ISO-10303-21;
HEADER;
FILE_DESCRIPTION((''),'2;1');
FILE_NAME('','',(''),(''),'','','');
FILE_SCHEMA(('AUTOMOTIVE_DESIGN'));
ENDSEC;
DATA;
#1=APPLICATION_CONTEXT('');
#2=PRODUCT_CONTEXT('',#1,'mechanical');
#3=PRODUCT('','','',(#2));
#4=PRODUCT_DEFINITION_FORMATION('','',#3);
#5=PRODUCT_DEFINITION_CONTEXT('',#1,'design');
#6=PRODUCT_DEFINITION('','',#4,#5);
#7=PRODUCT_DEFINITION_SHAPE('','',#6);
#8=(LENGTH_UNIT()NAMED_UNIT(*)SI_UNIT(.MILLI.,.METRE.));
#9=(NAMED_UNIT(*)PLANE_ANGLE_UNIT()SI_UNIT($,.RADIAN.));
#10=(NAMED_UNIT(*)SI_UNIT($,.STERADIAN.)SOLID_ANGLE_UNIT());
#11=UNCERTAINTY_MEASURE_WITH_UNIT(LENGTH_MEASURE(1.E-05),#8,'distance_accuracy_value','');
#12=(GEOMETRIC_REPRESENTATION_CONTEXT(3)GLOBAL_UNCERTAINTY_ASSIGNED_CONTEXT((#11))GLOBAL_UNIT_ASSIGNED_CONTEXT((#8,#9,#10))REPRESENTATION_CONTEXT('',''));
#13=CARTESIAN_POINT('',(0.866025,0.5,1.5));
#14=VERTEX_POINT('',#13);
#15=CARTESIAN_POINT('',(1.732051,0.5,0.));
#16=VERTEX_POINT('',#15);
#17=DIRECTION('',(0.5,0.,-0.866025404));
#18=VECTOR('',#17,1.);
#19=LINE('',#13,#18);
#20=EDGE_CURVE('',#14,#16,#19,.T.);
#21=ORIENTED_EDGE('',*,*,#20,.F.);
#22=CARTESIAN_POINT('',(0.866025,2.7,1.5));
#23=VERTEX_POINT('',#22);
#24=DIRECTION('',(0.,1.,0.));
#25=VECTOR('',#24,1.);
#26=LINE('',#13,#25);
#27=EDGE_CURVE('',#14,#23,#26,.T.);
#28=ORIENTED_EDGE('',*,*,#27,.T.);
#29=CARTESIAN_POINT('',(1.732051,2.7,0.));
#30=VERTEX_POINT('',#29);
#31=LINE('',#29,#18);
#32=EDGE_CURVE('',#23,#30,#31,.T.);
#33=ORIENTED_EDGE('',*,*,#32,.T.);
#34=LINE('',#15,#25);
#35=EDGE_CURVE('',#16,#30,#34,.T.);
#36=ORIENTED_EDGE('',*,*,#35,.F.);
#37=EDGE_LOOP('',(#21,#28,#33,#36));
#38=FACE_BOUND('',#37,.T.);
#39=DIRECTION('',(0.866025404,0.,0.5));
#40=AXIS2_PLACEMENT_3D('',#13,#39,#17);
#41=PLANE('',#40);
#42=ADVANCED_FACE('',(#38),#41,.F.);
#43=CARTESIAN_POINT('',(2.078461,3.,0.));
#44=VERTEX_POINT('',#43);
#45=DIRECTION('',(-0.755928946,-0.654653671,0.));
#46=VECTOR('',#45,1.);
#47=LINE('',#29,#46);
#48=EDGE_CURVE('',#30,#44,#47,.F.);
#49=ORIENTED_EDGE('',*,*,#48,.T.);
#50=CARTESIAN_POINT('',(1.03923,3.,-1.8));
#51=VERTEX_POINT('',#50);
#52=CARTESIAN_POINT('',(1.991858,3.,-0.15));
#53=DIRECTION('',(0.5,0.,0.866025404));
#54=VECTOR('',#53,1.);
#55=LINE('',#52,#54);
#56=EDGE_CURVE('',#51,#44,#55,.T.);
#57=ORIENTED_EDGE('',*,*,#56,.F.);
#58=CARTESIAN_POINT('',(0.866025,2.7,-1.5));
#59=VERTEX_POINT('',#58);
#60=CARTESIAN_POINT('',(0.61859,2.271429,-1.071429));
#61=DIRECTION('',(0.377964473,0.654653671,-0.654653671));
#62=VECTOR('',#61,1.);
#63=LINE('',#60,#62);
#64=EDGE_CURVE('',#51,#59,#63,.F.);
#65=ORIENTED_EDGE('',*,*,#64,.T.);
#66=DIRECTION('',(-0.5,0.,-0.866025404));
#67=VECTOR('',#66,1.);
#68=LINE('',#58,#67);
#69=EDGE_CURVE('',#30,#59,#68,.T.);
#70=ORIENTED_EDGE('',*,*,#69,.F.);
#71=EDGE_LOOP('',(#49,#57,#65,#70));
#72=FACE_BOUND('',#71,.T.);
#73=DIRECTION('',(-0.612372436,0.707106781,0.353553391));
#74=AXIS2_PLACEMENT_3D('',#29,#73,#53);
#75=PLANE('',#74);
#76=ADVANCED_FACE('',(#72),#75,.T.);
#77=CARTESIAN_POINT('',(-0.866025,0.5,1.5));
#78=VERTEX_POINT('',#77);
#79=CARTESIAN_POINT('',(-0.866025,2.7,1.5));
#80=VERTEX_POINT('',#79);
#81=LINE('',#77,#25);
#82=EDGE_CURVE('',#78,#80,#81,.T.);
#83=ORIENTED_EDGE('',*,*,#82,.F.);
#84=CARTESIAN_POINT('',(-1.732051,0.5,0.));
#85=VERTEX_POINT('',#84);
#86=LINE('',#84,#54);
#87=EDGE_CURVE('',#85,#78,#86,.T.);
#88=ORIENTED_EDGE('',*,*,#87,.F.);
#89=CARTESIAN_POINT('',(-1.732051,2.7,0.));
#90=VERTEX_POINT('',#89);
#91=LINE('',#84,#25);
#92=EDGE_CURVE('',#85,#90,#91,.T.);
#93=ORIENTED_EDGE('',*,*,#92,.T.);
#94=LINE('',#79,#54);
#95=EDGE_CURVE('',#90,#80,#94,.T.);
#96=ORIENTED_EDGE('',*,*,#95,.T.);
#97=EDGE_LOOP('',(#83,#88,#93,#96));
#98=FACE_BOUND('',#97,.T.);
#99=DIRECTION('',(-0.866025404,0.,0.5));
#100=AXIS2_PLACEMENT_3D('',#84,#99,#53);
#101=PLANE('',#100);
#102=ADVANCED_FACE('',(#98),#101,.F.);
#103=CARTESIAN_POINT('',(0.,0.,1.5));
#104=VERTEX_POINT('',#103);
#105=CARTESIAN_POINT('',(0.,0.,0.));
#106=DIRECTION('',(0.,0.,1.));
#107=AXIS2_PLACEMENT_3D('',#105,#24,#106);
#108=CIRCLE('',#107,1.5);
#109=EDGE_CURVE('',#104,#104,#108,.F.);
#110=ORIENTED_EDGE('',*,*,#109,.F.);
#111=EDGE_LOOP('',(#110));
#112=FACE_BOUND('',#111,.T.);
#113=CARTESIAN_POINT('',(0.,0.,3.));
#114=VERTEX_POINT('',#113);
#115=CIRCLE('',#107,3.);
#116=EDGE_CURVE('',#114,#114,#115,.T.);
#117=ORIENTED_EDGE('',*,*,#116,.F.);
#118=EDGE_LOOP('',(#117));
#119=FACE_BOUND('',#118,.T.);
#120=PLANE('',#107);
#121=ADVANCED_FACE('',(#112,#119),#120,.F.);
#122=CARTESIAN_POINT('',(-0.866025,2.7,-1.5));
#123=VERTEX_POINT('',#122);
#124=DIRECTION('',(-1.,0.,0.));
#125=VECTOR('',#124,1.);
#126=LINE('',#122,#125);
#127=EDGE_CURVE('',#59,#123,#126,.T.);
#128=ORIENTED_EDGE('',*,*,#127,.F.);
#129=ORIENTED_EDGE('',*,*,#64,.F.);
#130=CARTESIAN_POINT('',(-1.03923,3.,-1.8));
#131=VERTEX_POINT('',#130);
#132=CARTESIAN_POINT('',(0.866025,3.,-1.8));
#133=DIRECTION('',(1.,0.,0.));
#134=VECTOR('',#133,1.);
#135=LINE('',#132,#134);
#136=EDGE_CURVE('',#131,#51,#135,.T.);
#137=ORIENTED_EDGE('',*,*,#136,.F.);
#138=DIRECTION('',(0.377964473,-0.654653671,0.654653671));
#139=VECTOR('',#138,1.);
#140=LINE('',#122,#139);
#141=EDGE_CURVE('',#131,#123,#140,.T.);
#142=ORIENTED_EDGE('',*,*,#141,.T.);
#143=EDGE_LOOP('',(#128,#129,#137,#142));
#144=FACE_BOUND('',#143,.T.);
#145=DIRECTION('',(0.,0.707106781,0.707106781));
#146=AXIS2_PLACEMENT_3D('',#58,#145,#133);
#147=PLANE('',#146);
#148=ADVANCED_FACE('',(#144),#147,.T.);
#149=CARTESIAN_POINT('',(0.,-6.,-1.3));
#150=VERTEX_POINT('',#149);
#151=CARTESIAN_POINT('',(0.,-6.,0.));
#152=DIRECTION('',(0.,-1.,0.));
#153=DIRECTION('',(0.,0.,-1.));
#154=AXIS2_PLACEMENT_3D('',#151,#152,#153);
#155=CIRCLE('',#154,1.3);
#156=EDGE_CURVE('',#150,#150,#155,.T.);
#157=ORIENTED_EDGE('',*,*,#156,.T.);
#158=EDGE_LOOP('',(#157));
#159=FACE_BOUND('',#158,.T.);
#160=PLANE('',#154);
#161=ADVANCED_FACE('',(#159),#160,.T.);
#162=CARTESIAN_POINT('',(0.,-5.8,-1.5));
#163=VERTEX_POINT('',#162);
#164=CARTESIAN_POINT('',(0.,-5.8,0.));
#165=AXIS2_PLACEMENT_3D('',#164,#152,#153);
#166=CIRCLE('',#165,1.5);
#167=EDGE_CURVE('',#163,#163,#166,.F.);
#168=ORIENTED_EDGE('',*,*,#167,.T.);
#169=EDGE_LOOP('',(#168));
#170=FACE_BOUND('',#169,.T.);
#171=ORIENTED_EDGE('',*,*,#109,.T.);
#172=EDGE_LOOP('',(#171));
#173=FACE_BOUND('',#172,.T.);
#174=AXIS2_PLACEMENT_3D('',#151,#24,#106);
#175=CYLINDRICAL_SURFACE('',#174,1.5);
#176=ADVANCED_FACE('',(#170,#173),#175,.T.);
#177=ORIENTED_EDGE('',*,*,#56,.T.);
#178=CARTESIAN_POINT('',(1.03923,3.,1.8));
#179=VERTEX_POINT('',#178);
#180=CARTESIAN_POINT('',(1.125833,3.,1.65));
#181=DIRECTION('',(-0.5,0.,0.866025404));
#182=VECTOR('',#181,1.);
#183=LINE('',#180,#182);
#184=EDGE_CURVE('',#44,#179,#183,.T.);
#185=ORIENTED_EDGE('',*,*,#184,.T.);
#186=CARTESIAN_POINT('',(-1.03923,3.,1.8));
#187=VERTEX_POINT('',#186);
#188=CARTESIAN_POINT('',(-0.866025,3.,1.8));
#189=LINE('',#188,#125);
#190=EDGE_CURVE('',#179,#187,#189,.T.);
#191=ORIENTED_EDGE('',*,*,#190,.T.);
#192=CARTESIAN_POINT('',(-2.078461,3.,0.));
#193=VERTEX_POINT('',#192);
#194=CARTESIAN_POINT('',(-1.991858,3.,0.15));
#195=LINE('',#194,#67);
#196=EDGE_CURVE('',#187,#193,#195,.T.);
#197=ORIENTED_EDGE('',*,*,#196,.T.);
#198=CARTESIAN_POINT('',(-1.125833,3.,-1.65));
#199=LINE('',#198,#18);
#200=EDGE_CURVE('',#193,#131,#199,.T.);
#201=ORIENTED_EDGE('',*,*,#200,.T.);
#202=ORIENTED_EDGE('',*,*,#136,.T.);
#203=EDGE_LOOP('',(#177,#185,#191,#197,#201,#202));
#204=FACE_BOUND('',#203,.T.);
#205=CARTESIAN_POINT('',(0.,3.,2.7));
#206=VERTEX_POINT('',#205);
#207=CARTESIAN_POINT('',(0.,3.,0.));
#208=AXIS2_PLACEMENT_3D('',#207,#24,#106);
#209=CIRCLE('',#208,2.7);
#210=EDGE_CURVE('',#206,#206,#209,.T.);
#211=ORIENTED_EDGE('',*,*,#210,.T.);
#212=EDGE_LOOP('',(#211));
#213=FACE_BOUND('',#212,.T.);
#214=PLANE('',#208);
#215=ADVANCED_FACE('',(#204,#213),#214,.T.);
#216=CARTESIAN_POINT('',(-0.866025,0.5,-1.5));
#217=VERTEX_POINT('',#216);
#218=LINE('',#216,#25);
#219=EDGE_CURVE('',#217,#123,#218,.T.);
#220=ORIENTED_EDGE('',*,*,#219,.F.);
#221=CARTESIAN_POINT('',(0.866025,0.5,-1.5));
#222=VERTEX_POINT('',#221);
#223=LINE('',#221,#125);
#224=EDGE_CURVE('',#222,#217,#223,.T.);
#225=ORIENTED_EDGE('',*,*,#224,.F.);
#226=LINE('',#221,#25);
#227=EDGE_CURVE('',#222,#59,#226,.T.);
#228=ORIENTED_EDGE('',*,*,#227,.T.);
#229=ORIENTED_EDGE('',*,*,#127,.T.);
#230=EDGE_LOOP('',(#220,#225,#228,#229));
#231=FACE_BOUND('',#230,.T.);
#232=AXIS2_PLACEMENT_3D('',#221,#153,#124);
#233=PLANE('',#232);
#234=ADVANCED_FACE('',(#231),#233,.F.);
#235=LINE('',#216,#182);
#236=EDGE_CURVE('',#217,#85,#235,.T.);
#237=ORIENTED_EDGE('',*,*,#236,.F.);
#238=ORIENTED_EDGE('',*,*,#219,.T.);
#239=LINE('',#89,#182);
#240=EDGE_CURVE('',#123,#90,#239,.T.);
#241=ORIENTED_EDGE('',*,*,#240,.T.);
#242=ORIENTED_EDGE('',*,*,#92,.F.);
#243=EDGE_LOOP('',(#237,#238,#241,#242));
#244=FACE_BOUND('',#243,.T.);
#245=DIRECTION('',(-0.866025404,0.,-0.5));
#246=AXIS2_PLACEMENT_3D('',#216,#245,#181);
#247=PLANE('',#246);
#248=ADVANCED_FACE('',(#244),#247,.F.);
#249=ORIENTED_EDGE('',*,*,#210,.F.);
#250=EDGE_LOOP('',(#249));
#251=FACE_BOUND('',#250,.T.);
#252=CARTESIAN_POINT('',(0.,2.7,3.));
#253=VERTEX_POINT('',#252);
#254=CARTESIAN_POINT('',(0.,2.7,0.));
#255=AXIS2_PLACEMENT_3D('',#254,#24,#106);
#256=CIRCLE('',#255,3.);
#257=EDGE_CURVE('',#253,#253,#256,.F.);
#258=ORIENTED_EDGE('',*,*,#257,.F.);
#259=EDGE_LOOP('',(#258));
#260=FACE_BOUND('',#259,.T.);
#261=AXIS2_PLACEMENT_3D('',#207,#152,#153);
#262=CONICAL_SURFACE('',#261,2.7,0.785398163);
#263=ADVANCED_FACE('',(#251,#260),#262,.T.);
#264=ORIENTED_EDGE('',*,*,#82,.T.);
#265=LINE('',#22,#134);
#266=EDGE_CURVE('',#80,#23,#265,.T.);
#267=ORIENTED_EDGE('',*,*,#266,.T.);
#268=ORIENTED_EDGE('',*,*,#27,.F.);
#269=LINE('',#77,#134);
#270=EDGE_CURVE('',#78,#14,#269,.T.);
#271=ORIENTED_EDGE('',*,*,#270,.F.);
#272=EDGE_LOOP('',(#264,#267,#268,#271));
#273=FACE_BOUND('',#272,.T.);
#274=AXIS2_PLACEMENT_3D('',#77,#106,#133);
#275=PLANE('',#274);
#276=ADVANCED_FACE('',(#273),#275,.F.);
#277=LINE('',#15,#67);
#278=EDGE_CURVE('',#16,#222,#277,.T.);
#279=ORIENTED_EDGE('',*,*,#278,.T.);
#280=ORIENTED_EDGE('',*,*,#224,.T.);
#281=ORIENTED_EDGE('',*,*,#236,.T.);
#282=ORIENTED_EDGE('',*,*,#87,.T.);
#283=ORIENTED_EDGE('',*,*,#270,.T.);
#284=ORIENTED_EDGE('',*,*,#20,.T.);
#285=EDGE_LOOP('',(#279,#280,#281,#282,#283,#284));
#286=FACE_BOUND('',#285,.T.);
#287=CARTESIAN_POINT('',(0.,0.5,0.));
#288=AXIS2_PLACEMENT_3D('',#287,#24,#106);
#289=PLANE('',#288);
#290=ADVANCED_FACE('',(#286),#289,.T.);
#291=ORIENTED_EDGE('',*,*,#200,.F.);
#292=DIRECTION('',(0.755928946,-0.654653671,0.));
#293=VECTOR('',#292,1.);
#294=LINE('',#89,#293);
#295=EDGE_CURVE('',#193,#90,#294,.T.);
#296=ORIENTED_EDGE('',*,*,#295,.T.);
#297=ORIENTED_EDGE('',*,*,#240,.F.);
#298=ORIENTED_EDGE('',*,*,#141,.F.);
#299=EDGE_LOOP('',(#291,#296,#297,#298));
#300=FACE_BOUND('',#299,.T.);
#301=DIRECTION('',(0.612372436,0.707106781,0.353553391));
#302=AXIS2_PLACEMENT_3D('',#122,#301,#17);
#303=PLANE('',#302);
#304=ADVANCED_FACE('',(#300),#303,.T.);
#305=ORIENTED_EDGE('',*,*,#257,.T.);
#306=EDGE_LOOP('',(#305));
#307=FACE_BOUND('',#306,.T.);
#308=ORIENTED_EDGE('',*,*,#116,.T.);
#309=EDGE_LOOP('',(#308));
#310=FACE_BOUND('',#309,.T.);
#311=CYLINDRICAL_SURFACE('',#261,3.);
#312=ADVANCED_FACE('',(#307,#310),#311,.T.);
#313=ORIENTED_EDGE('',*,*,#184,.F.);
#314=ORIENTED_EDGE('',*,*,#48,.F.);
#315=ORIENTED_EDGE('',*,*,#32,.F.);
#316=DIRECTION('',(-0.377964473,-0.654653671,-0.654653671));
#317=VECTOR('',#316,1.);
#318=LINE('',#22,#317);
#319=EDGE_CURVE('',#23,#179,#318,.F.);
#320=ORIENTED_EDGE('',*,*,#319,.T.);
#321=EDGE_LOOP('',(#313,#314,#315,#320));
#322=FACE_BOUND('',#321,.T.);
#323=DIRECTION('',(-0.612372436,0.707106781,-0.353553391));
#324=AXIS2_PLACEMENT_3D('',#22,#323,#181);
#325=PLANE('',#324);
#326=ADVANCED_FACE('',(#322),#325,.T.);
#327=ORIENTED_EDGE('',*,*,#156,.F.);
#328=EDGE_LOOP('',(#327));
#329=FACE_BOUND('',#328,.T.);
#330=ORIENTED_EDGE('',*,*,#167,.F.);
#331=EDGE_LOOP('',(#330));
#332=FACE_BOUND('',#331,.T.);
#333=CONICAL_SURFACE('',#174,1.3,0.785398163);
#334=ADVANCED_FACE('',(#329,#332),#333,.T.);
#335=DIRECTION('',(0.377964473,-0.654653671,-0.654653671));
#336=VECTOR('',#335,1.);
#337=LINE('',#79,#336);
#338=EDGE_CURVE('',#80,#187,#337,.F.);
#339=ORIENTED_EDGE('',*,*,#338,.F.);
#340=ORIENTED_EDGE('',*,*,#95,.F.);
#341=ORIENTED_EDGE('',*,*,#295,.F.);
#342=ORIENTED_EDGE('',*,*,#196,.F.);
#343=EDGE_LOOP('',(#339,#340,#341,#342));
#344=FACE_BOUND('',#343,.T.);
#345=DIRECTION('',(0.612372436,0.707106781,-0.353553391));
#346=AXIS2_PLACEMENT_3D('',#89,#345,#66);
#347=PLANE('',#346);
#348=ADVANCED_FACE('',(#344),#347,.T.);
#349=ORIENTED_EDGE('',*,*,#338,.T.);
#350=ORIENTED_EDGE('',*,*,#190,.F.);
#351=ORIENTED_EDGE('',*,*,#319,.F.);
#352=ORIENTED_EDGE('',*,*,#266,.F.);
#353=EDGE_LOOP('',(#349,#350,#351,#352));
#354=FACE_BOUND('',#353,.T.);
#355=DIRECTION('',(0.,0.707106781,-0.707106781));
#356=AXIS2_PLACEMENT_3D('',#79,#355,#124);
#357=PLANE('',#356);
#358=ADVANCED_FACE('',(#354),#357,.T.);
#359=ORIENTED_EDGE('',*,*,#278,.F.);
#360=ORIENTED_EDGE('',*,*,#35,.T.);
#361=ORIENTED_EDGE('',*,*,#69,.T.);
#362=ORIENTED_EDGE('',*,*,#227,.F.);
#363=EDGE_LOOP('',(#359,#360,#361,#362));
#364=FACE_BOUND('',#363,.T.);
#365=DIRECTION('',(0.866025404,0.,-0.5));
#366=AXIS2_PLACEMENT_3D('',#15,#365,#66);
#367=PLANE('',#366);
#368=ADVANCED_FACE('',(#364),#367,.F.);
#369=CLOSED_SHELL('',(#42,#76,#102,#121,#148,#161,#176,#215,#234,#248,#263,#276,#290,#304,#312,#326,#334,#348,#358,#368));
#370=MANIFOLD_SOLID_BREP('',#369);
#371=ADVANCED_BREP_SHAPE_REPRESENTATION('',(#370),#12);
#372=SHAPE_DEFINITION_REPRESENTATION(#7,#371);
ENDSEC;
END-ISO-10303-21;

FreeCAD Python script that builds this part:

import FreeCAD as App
import Part
import Sketcher
from FreeCAD import Vector
Q = App.Units.Quantity


def edges_at(feature, points):
    """Names of the edges that pass closest to the given points."""
    edges = feature.Shape.Edges
    near = lambda p: min(range(len(edges)), key=lambda i: edges[i].distToShape(Part.Vertex(*p))[0])
    return sorted({f"Edge{near(p) + 1}" for p in points})


def add_polygon(sketch, points):
    """Adds a closed chain of lines whose ends are joined by coincident constraints."""
    first, n = sketch.GeometryCount, len(points)
    for a, b in zip(points, points[1:] + points[:1]):
        sketch.addGeometry(Part.LineSegment(App.Vector(*a, 0), App.Vector(*b, 0)), False)
    for i in range(n):
        sketch.addConstraint(Sketcher.Constraint("Coincident", first + i, 2, first + (i + 1) % n, 1))

doc = App.newDocument("Part")
body = doc.addObject("PartDesign::Body", "Body")

# Sketch on XZ plane
sketch1 = body.newObject("Sketcher::SketchObject", "Sketch")
sketch1.AttachmentSupport = (doc.getObject("XZ_Plane"), [""])
sketch1.MapMode = "FlatFace"
sketch1.addGeometry(Part.Circle(Vector(0, 0, 0), Vector(0, 0, 1), 3), False)
sketch1.addConstraint(Sketcher.Constraint("Coincident", 0, 3, -1, 1))
sketch1.addConstraint(Sketcher.Constraint("Diameter", 0, Q("6 mm")))
pad1 = body.newObject("PartDesign::Pad", "Pad")
pad1.Profile = sketch1
pad1.Length = 3
pad1.Reversed = True
doc.recompute()

chamfer = body.newObject("PartDesign::Chamfer", "Chamfer")
chamfer.Base = (pad1, edges_at(pad1, [(0, 3, -3)]))
chamfer.Size = 0.3

# Sketch on XZ plane
sketch2 = body.newObject("Sketcher::SketchObject", "Sketch001")
sketch2.AttachmentSupport = (doc.getObject("XZ_Plane"), [""])
sketch2.MapMode = "FlatFace"
sketch2.AttachmentOffset = App.Placement(Vector(0, 0, -3), App.Rotation())
add_polygon(sketch2, [(1.7, 0), (0.9, -1.5), (-0.9, -1.5), (-1.7, 0), (-0.9, 1.5), (0.9, 1.5)])  # lines 0-5
sketch2.addConstraint(Sketcher.Constraint("Horizontal", 1))
sketch2.addConstraint(Sketcher.Constraint("Horizontal", 4))
sketch2.addConstraint(Sketcher.Constraint("Symmetric", 0, 2, 3, 2, -1, 1))
sketch2.addConstraint(Sketcher.Constraint("Symmetric", 2, 2, 5, 2, -1, 1))
sketch2.addConstraint(Sketcher.Constraint("PointOnObject", 2, 2, -1))
sketch2.addConstraint(Sketcher.Constraint("Parallel", 2, 5))
sketch2.addConstraint(Sketcher.Constraint("Vertical", 1, 2, 3, 2))
sketch2.addConstraint(Sketcher.Constraint("Angle", 0, Q("-120 deg")))
sketch2.addConstraint(Sketcher.Constraint("DistanceY", 1, 2, 3, 2, Q("3 mm")))
sketch2.addConstraint(Sketcher.Constraint("DistanceX", 1, 2, 1, 1, Q("1.732051 mm")))
pocket1 = body.newObject("PartDesign::Pocket", "Pocket")
pocket1.Profile = sketch2
pocket1.Length = 2.5
pocket1.Reversed = True
doc.recompute()

chamfer2 = body.newObject("PartDesign::Chamfer", "Chamfer001")
chamfer2.Base = (pocket1, edges_at(pocket1, [
    (1.299, 3, 0.75),
    (1.299, 3, -0.75),
    (0, 3, -1.5),
    (-1.299, 3, -0.75),
    (-1.299, 3, 0.75),
    (0, 3, 1.5),
]))
chamfer2.Size = 0.3

# Sketch on XZ plane
sketch3 = body.newObject("Sketcher::SketchObject", "Sketch002")
sketch3.AttachmentSupport = (doc.getObject("XZ_Plane"), [""])
sketch3.MapMode = "FlatFace"
sketch3.addGeometry(Part.Circle(Vector(0, 0, 0), Vector(0, 0, 1), 1.5), False)
sketch3.addConstraint(Sketcher.Constraint("Coincident", 0, 3, -1, 1))
sketch3.addConstraint(Sketcher.Constraint("Diameter", 0, Q("3 mm")))
pad2 = body.newObject("PartDesign::Pad", "Pad001")
pad2.Profile = sketch3
pad2.Length = 6
doc.recompute()

chamfer3 = body.newObject("PartDesign::Chamfer", "Chamfer002")
chamfer3.Base = (pad2, edges_at(pad2, [(0, -6, -1.5)]))
chamfer3.Size = 0.2

doc.recompute()
